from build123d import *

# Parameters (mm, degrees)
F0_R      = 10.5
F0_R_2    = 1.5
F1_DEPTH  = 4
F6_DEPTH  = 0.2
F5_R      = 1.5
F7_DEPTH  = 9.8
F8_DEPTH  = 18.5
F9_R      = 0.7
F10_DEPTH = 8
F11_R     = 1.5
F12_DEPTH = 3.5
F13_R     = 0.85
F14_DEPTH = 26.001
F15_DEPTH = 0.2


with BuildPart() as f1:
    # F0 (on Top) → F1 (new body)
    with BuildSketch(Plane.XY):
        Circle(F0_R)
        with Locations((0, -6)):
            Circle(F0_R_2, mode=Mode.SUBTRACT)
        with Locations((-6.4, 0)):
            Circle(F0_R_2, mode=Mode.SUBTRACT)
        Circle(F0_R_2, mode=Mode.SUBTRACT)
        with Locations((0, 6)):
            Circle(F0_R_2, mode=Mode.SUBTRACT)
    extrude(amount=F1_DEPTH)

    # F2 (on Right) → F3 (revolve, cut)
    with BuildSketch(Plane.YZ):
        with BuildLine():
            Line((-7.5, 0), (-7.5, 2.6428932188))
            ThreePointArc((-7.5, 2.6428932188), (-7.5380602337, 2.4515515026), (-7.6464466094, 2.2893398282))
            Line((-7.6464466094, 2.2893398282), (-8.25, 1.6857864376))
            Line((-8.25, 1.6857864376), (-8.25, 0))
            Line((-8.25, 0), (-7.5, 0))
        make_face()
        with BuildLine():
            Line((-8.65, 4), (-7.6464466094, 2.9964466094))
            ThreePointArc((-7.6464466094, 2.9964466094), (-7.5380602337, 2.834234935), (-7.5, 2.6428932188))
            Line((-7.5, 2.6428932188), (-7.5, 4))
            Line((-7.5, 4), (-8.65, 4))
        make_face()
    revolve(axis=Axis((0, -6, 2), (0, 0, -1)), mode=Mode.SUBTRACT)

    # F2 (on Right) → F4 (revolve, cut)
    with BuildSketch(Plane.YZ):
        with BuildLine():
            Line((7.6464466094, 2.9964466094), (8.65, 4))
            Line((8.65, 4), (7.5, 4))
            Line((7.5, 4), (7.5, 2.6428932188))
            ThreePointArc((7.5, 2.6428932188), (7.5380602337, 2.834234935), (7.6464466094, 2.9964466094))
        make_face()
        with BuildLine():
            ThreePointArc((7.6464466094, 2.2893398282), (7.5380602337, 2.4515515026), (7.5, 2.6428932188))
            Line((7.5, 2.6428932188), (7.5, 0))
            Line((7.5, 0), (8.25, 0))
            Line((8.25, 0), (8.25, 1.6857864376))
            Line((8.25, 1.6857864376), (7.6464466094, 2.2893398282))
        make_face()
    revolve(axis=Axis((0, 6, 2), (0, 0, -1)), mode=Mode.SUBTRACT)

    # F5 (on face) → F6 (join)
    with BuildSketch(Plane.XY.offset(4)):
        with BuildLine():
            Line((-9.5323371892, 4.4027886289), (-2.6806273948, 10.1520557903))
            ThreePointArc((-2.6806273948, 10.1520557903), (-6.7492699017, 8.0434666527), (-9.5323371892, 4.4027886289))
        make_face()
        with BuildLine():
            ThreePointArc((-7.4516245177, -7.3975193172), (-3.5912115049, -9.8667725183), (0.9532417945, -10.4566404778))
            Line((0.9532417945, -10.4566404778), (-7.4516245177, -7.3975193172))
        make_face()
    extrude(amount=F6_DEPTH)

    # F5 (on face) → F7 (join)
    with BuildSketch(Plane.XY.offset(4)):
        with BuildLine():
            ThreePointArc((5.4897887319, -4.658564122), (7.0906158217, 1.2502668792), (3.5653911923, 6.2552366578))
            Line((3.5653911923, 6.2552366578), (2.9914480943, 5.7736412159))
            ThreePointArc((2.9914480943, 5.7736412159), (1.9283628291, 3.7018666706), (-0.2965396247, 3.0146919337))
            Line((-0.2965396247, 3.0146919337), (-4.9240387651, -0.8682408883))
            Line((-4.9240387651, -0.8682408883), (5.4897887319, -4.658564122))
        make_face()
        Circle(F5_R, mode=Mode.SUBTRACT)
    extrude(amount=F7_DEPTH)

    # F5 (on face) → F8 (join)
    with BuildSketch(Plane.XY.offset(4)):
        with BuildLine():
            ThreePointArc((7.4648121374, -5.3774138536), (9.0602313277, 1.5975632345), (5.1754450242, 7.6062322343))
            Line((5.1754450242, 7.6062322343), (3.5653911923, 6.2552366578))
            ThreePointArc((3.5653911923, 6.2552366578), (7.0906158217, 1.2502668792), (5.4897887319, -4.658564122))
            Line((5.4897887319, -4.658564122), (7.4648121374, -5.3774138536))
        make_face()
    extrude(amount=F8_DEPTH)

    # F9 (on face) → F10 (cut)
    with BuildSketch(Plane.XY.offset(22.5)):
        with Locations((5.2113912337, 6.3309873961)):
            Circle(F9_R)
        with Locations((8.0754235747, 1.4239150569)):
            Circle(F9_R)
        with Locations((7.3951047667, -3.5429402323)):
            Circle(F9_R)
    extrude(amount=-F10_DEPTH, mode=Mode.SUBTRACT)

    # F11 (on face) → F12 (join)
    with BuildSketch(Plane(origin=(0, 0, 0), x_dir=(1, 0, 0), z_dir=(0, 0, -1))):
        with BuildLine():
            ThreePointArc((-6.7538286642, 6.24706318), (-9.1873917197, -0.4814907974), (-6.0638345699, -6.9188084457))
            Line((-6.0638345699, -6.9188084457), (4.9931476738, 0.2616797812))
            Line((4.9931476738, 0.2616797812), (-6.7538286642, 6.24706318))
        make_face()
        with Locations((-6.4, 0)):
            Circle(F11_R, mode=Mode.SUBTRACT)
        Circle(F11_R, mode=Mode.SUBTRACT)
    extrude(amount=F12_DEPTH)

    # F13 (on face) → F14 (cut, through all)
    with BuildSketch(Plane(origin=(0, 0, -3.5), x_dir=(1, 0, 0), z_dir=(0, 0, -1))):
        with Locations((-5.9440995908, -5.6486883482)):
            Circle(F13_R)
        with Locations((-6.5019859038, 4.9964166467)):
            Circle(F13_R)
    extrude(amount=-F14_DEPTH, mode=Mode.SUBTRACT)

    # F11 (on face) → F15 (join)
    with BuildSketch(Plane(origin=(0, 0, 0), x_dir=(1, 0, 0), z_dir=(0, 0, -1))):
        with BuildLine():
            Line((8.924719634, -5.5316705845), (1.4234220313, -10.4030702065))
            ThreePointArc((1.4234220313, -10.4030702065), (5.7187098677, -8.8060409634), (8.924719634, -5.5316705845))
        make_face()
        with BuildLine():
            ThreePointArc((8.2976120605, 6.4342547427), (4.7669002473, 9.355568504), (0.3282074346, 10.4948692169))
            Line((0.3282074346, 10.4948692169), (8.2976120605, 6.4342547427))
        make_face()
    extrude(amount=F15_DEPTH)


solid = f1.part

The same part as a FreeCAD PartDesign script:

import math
import FreeCAD as App
import Part
import Sketcher
Q = App.Units.Quantity

doc = App.newDocument("Part")
body = doc.addObject("PartDesign::Body", "Body")

# Sketch on XY plane
sketch1 = body.newObject("Sketcher::SketchObject", "Sketch")
sketch1.AttachmentSupport = (doc.getObject("XY_Plane"), [""])
sketch1.MapMode = "FlatFace"
sketch1.addGeometry([
    Part.Circle(App.Vector(0, 0, 0), App.Vector(0, 0, 1), 10.5),  # 0
    Part.Circle(App.Vector(0, -6, 0), App.Vector(0, 0, 1), 1.5),  # 1
    Part.Circle(App.Vector(-6.4, 0, 0), App.Vector(0, 0, 1), 1.5),  # 2
    Part.Circle(App.Vector(0, 0, 0), App.Vector(0, 0, 1), 1.5),  # 3
    Part.Circle(App.Vector(0, 6, 0), App.Vector(0, 0, 1), 1.5),  # 4
], False)
sketch1.addConstraint([
    Sketcher.Constraint("Coincident", 0, 3, -1, 1),
    Sketcher.Constraint("Coincident", 3, 3, -1, 1),
    Sketcher.Constraint("Equal", 1, 2),
    Sketcher.Constraint("Equal", 2, 3),
    Sketcher.Constraint("Equal", 3, 4),
    Sketcher.Constraint("Symmetric", 1, 3, 4, 3, -1, 1),
    Sketcher.Constraint("PointOnObject", 1, 3, -2),
    Sketcher.Constraint("PointOnObject", 2, 3, -1),
    Sketcher.Constraint("Diameter", 0, Q("21 mm")),
    Sketcher.Constraint("Diameter", 1, Q("3 mm")),
    Sketcher.Constraint("DistanceY", 1, 3, -1, 1, Q("6 mm")),
    Sketcher.Constraint("DistanceX", 2, 3, -1, 1, Q("6.4 mm")),
])
pad1 = body.newObject("PartDesign::Pad", "Pad")
pad1.Profile = sketch1
pad1.Length = 4

# Sketch on YZ plane
sketch2 = body.newObject("Sketcher::SketchObject", "Sketch001")
sketch2.AttachmentSupport = (doc.getObject("YZ_Plane"), [""])
sketch2.MapMode = "FlatFace"
sketch2.addGeometry([
    Part.LineSegment(App.Vector(-7.5, 0, 0), App.Vector(-7.5, 2.64, 0)),  # 0
    Part.ArcOfCircle(Part.Circle(App.Vector(-8, 2.64, 0), App.Vector(0, 0, 1), 0.5), math.radians(-45), math.radians(0)),  # 1
    Part.LineSegment(App.Vector(-7.65, 2.29, 0), App.Vector(-8.25, 1.69, 0)),  # 2
    Part.LineSegment(App.Vector(-8.25, 1.69, 0), App.Vector(-8.25, 0, 0)),  # 3
    Part.LineSegment(App.Vector(-8.25, 0, 0), App.Vector(-7.5, 0, 0)),  # 4
    Part.LineSegment(App.Vector(-8.65, 4, 0), App.Vector(-7.65, 3, 0)),  # 5
    Part.ArcOfCircle(Part.Circle(App.Vector(-8, 2.64, 0), App.Vector(0, 0, 1), 0.5), math.radians(0), math.radians(45)),  # 6
    Part.LineSegment(App.Vector(-7.5, 2.64, 0), App.Vector(-7.5, 4, 0)),  # 7
    Part.LineSegment(App.Vector(-7.5, 4, 0), App.Vector(-8.65, 4, 0)),  # 8
], False)
sketch2.addGeometry(Part.LineSegment(App.Vector(-6, 4, 0), App.Vector(-6, 0, 0)), True)  # axis
sketch2.addConstraint([
    Sketcher.Constraint("Tangent", 0, 2, 1, 2),
    Sketcher.Constraint("Tangent", 1, 1, 2, 1),
    Sketcher.Constraint("Coincident", 2, 2, 3, 1),
    Sketcher.Constraint("Coincident", 3, 2, 4, 1),
    Sketcher.Constraint("Coincident", 4, 2, 0, 1),
    Sketcher.Constraint("Tangent", 5, 2, 6, 2),
    Sketcher.Constraint("Tangent", 6, 1, 7, 1),
    Sketcher.Constraint("Coincident", 7, 2, 8, 1),
    Sketcher.Constraint("Coincident", 8, 2, 5, 1),
    Sketcher.Constraint("Vertical", 0),
    Sketcher.Constraint("Vertical", 3),
    Sketcher.Constraint("Horizontal", 4),
    Sketcher.Constraint("Vertical", 7),
    Sketcher.Constraint("Horizontal", 8),
    Sketcher.Constraint("Vertical", 9),
    Sketcher.Constraint("Coincident", 6, 3, 1, 3),
    Sketcher.Constraint("Equal", 1, 6),
    Sketcher.Constraint("PointOnObject", 3, 2, -1),
    Sketcher.Constraint("PointOnObject", 9, 2, -1),
    Sketcher.Constraint("Perpendicular", 2, 5),
    Sketcher.Constraint("Horizontal", 8, 2, 9, 1),
    Sketcher.Constraint("Vertical", 1, 1, 5, 2),
    Sketcher.Constraint("Radius", 1, Q("0.5 mm")),
    Sketcher.Constraint("DistanceY", 9, 2, 9, 1, Q("4 mm")),
    Sketcher.Constraint("DistanceX", 1, 3, -1, 1, Q("8 mm")),
    Sketcher.Constraint("DistanceX", 9, 1, -1, 1, Q("6 mm")),
    Sketcher.Constraint("DistanceX", 4, 1, 4, 2, Q("0.75 mm")),
    Sketcher.Constraint("DistanceX", 8, 2, 8, 1, Q("1.15 mm")),
])
groove = body.newObject("PartDesign::Groove", "Groove")
groove.Profile = sketch2
groove.ReferenceAxis = (sketch2, ["Axis0"])
groove.Angle = 360

# Sketch on YZ plane
sketch3 = body.newObject("Sketcher::SketchObject", "Sketch002")
sketch3.AttachmentSupport = (doc.getObject("YZ_Plane"), [""])
sketch3.MapMode = "FlatFace"
sketch3.addGeometry([
    Part.LineSegment(App.Vector(7.65, 3, 0), App.Vector(8.65, 4, 0)),  # 0
    Part.LineSegment(App.Vector(8.65, 4, 0), App.Vector(7.5, 4, 0)),  # 1
    Part.LineSegment(App.Vector(7.5, 4, 0), App.Vector(7.5, 2.64, 0)),  # 2
    Part.ArcOfCircle(Part.Circle(App.Vector(8, 2.64, 0), App.Vector(0, 0, 1), 0.5), math.radians(135), math.radians(180)),  # 3
    Part.ArcOfCircle(Part.Circle(App.Vector(8, 2.64, 0), App.Vector(0, 0, 1), 0.5), math.radians(180), math.radians(225)),  # 4
    Part.LineSegment(App.Vector(7.5, 2.64, 0), App.Vector(7.5, 0, 0)),  # 5
    Part.LineSegment(App.Vector(7.5, 0, 0), App.Vector(8.25, 0, 0)),  # 6
    Part.LineSegment(App.Vector(8.25, 0, 0), App.Vector(8.25, 1.69, 0)),  # 7
    Part.LineSegment(App.Vector(8.25, 1.69, 0), App.Vector(7.65, 2.29, 0)),  # 8
], False)
sketch3.addGeometry(Part.LineSegment(App.Vector(6, 4, 0), App.Vector(6, 0, 0)), True)  # axis
sketch3.addConstraint([
    Sketcher.Constraint("Coincident", 0, 2, 1, 1),
    Sketcher.Constraint("Coincident", 1, 2, 2, 1),
    Sketcher.Constraint("Tangent", 2, 2, 3, 2),
    Sketcher.Constraint("Tangent", 3, 1, 0, 1),
    Sketcher.Constraint("Tangent", 4, 1, 5, 1),
    Sketcher.Constraint("Coincident", 5, 2, 6, 1),
    Sketcher.Constraint("Coincident", 6, 2, 7, 1),
    Sketcher.Constraint("Coincident", 7, 2, 8, 1),
    Sketcher.Constraint("Tangent", 8, 2, 4, 2),
    Sketcher.Constraint("Horizontal", 1),
    Sketcher.Constraint("Vertical", 2),
    Sketcher.Constraint("Vertical", 5),
    Sketcher.Constraint("Horizontal", 6),
    Sketcher.Constraint("Vertical", 7),
    Sketcher.Constraint("Vertical", 9),
    Sketcher.Constraint("Coincident", 4, 3, 3, 3),
    Sketcher.Constraint("Equal", 3, 4),
    Sketcher.Constraint("PointOnObject", 5, 2, -1),
    Sketcher.Constraint("PointOnObject", 9, 2, -1),
    Sketcher.Constraint("Perpendicular", 0, 8),
    Sketcher.Constraint("Horizontal", 1, 2, 9, 1),
    Sketcher.Constraint("Vertical", 3, 1, 8, 2),
    Sketcher.Constraint("Radius", 3, Q("0.5 mm")),
    Sketcher.Constraint("DistanceY", 9, 2, 9, 1, Q("4 mm")),
    Sketcher.Constraint("DistanceX", -1, 1, 3, 3, Q("8 mm")),
    Sketcher.Constraint("DistanceX", -1, 1, 9, 1, Q("6 mm")),
    Sketcher.Constraint("DistanceX", 1, 2, 1, 1, Q("1.15 mm")),
    Sketcher.Constraint("DistanceX", 6, 1, 6, 2, Q("0.75 mm")),
])
groove2 = body.newObject("PartDesign::Groove", "Groove001")
groove2.Profile = sketch3
groove2.ReferenceAxis = (sketch3, ["Axis0"])
groove2.Angle = 360

# Sketch on XY plane
sketch4 = body.newObject("Sketcher::SketchObject", "Sketch003")
sketch4.AttachmentSupport = (doc.getObject("XY_Plane"), [""])
sketch4.MapMode = "FlatFace"
sketch4.AttachmentOffset = App.Placement(App.Vector(0, 0, 4), App.Rotation())
sketch4.addGeometry([
    Part.LineSegment(App.Vector(-10, 4, 0), App.Vector(-3, 10, 0)),
    Part.ArcOfCircle(Part.Circle(App.Vector(0, 0, 0), App.Vector(0, 0, 1), 10), math.radians(105), math.radians(155)),
    Part.ArcOfCircle(Part.Circle(App.Vector(0, 0, 0), App.Vector(0, 0, 1), 10), math.radians(-135), math.radians(-85)),
    Part.LineSegment(App.Vector(1, -10, 0), App.Vector(-7, -7, 0)),
], False)
sketch4.addConstraint([
    Sketcher.Constraint("Coincident", 0, 1, 1, 2),
    Sketcher.Constraint("Coincident", 1, 1, 0, 2),
    Sketcher.Constraint("Coincident", 2, 1, 3, 2),
    Sketcher.Constraint("Coincident", 3, 1, 2, 2),
    Sketcher.Constraint("Coincident", 1, 3, -1, 1),
    Sketcher.Constraint("Coincident", 2, 3, -1, 1),
    Sketcher.Constraint("Equal", 1, 2),
    Sketcher.Constraint("Equal", 0, 3),
    Sketcher.Constraint("Radius", 1, Q("10.5 mm")),
    Sketcher.Constraint("Angle", 0, Q("40 deg")),
    Sketcher.Constraint("Angle", 3, Q("160 deg")),
    Sketcher.Constraint("Distance", 0, Q("8.944272 mm")),
])
pad2 = body.newObject("PartDesign::Pad", "Pad001")
pad2.Profile = sketch4
pad2.Length = 0.2

# Sketch on XY plane
sketch5 = body.newObject("Sketcher::SketchObject", "Sketch004")
sketch5.AttachmentSupport = (doc.getObject("XY_Plane"), [""])
sketch5.MapMode = "FlatFace"
sketch5.AttachmentOffset = App.Placement(App.Vector(0, 0, 4), App.Rotation())
sketch5.addGeometry([
    Part.ArcOfCircle(Part.Circle(App.Vector(0, 0, 0), App.Vector(0, 0, 1), 7.2), math.radians(-40), math.radians(60)),  # 0
    Part.LineSegment(App.Vector(3.6, 6.3, 0), App.Vector(3, 5.8, 0)),  # 1
    Part.ArcOfCircle(Part.Circle(App.Vector(0, 6, 0), App.Vector(0, 0, 1), 3), math.radians(-96), math.radians(-4)),  # 2
    Part.LineSegment(App.Vector(-0.3, 3, 0), App.Vector(-4.9, -0.9, 0)),  # 3
    Part.LineSegment(App.Vector(-4.9, -0.9, 0), App.Vector(5.5, -4.7, 0)),  # 4
    Part.Circle(App.Vector(0, 0, 0), App.Vector(0, 0, 1), 1.5),  # 5
], False)
sketch5.addConstraint([
    Sketcher.Constraint("Coincident", 0, 2, 1, 1),
    Sketcher.Constraint("Coincident", 1, 2, 2, 2),
    Sketcher.Constraint("Coincident", 2, 1, 3, 1),
    Sketcher.Constraint("Coincident", 3, 2, 4, 1),
    Sketcher.Constraint("Coincident", 4, 2, 0, 1),
    Sketcher.Constraint("Coincident", 0, 3, -1, 1),
    Sketcher.Constraint("Coincident", 5, 3, -1, 1),
    Sketcher.Constraint("PointOnObject", 2, 3, -2),
    Sketcher.Constraint("Parallel", 1, 3),
    Sketcher.Constraint("Diameter", 5, Q("3 mm")),
    Sketcher.Constraint("Radius", 2, Q("3 mm")),
    Sketcher.Constraint("Radius", 0, Q("7.2 mm")),
    Sketcher.Constraint("Angle", 1, Q("-140 deg")),
    Sketcher.Constraint("Angle", 4, Q("-20 deg")),
    Sketcher.Constraint("DistanceY", -1, 1, 2, 3, Q("6 mm")),
    Sketcher.Constraint("DistanceX", 3, 2, 2, 1, Q("4.627499 mm")),
    Sketcher.Constraint("Distance", 1, Q("0.74923 mm")),
    Sketcher.Constraint("DistanceX", 2, 1, -1, 1, Q("0.29654 mm")),
])
pad3 = body.newObject("PartDesign::Pad", "Pad002")
pad3.Profile = sketch5
pad3.Length = 9.8

# Sketch on XY plane
sketch6 = body.newObject("Sketcher::SketchObject", "Sketch005")
sketch6.AttachmentSupport = (doc.getObject("XY_Plane"), [""])
sketch6.MapMode = "FlatFace"
sketch6.AttachmentOffset = App.Placement(App.Vector(0, 0, 4), App.Rotation())
sketch6.addGeometry([
    Part.ArcOfCircle(Part.Circle(App.Vector(0, 0, 0), App.Vector(0, 0, 1), 9.2), math.radians(-36), math.radians(56)),
    Part.LineSegment(App.Vector(5.2, 7.6, 0), App.Vector(3.6, 6.3, 0)),
    Part.ArcOfCircle(Part.Circle(App.Vector(0, 0, 0), App.Vector(0, 0, 1), 7.2), math.radians(-40), math.radians(60)),
    Part.LineSegment(App.Vector(5.5, -4.7, 0), App.Vector(7.5, -5.4, 0)),
], False)
sketch6.addConstraint([
    Sketcher.Constraint("Coincident", 0, 2, 1, 1),
    Sketcher.Constraint("Coincident", 1, 2, 2, 2),
    Sketcher.Constraint("Coincident", 2, 1, 3, 1),
    Sketcher.Constraint("Coincident", 3, 2, 0, 1),
    Sketcher.Constraint("Coincident", 0, 3, -1, 1),
    Sketcher.Constraint("Coincident", 2, 3, -1, 1),
    Sketcher.Constraint("Equal", 1, 3),
    Sketcher.Constraint("Radius", 0, Q("9.2 mm")),
    Sketcher.Constraint("Radius", 2, Q("7.2 mm")),
    Sketcher.Constraint("Angle", 1, Q("-140 deg")),
    Sketcher.Constraint("Angle", 3, Q("-20 deg")),
    Sketcher.Constraint("DistanceY", 2, 1, 1, 2, Q("10.913801 mm")),
])
pad4 = body.newObject("PartDesign::Pad", "Pad003")
pad4.Profile = sketch6
pad4.Length = 18.5

# Sketch on XY plane
sketch7 = body.newObject("Sketcher::SketchObject", "Sketch006")
sketch7.AttachmentSupport = (doc.getObject("XY_Plane"), [""])
sketch7.MapMode = "FlatFace"
sketch7.AttachmentOffset = App.Placement(App.Vector(0, 0, 22.5), App.Rotation())
sketch7.addGeometry([
    Part.Circle(App.Vector(5.2, 6.3, 0), App.Vector(0, 0, 1), 0.7),
    Part.Circle(App.Vector(8.1, 1.4, 0), App.Vector(0, 0, 1), 0.7),
    Part.Circle(App.Vector(7.4, -3.5, 0), App.Vector(0, 0, 1), 0.7),
], False)
sketch7.addConstraint([
    Sketcher.Constraint("Equal", 0, 1),
    Sketcher.Constraint("Equal", 1, 2),
    Sketcher.Constraint("Diameter", 0, Q("1.4 mm")),
    Sketcher.Constraint("DistanceX", -1, 1, 0, 3, Q("5.211391 mm")),
    Sketcher.Constraint("DistanceY", 2, 3, -1, 1, Q("3.54294 mm")),
    Sketcher.Constraint("DistanceX", 2, 3, 1, 3, Q("0.680319 mm")),
    Sketcher.Constraint("DistanceY", -1, 1, 0, 3, Q("6.330987 mm")),
    Sketcher.Constraint("DistanceX", -1, 1, 1, 3, Q("8.075424 mm")),
    Sketcher.Constraint("DistanceY", -1, 1, 1, 3, Q("1.423915 mm")),
])
pocket1 = body.newObject("PartDesign::Pocket", "Pocket")
pocket1.Profile = sketch7
pocket1.Length = 8

# Sketch on XY plane
sketch8 = body.newObject("Sketcher::SketchObject", "Sketch007")
sketch8.AttachmentSupport = (doc.getObject("XY_Plane"), [""])
sketch8.MapMode = "FlatFace"
sketch8.addGeometry([
    Part.ArcOfCircle(Part.Circle(App.Vector(0, 0, 0), App.Vector(0, 0, 1), 9.2), math.radians(131), math.radians(223)),  # 0
    Part.LineSegment(App.Vector(-6.1, 6.9, 0), App.Vector(5, -0.3, 0)),  # 1
    Part.LineSegment(App.Vector(5, -0.3, 0), App.Vector(-6.8, -6.2, 0)),  # 2
    Part.Circle(App.Vector(-6.4, 0, 0), App.Vector(0, 0, 1), 1.5),  # 3
    Part.Circle(App.Vector(0, 0, 0), App.Vector(0, 0, 1), 1.5),  # 4
], False)
sketch8.addConstraint([
    Sketcher.Constraint("Coincident", 0, 1, 1, 1),
    Sketcher.Constraint("Coincident", 1, 2, 2, 1),
    Sketcher.Constraint("Coincident", 2, 2, 0, 2),
    Sketcher.Constraint("Coincident", 0, 3, -1, 1),
    Sketcher.Constraint("Coincident", 4, 3, -1, 1),
    Sketcher.Constraint("Equal", 3, 4),
    Sketcher.Constraint("PointOnObject", 3, 3, -1),
    Sketcher.Constraint("Equal", 1, 2),
    Sketcher.Constraint("Diameter", 3, Q("3 mm")),
    Sketcher.Constraint("Radius", 0, Q("9.2 mm")),
    Sketcher.Constraint("Angle", 1, Q("-33 deg")),
    Sketcher.Constraint("Angle", 2, Q("-153 deg")),
    Sketcher.Constraint("DistanceX", 3, 3, -1, 1, Q("6.4 mm")),
    Sketcher.Constraint("Distance", 1, Q("13.18394 mm")),
])
pad5 = body.newObject("PartDesign::Pad", "Pad004")
pad5.Profile = sketch8
pad5.Length = 3.5
pad5.Reversed = True

# Sketch on XY plane
sketch9 = body.newObject("Sketcher::SketchObject", "Sketch008")
sketch9.AttachmentSupport = (doc.getObject("XY_Plane"), [""])
sketch9.MapMode = "FlatFace"
sketch9.AttachmentOffset = App.Placement(App.Vector(0, 0, -3.5), App.Rotation())
sketch9.addGeometry([
    Part.Circle(App.Vector(-5.9, 5.6, 0), App.Vector(0, 0, 1), 0.8),
    Part.Circle(App.Vector(-6.5, -5, 0), App.Vector(0, 0, 1), 0.8),
], False)
sketch9.addConstraint([
    Sketcher.Constraint("Equal", 0, 1),
    Sketcher.Constraint("Diameter", 0, Q("1.7 mm")),
    Sketcher.Constraint("DistanceX", 0, 3, -1, 1, Q("5.9441 mm")),
    Sketcher.Constraint("DistanceY", -1, 1, 0, 3, Q("5.648688 mm")),
    Sketcher.Constraint("DistanceX", 1, 3, -1, 1, Q("6.501986 mm")),
    Sketcher.Constraint("DistanceY", 1, 3, -1, 1, Q("4.996417 mm")),
])
pocket2 = body.newObject("PartDesign::Pocket", "Pocket001")
pocket2.Profile = sketch9
pocket2.Type = "ThroughAll"
pocket2.Reversed = True

# Sketch on XY plane
sketch10 = body.newObject("Sketcher::SketchObject", "Sketch009")
sketch10.AttachmentSupport = (doc.getObject("XY_Plane"), [""])
sketch10.MapMode = "FlatFace"
sketch10.addGeometry([
    Part.LineSegment(App.Vector(9, 6, 0), App.Vector(1, 10, 0)),
    Part.ArcOfCircle(Part.Circle(App.Vector(0, 0, 0), App.Vector(0, 0, 1), 10), math.radians(32), math.radians(82)),
    Part.ArcOfCircle(Part.Circle(App.Vector(0, 0, 0), App.Vector(0, 0, 1), 10), math.radians(-88), math.radians(-38)),
    Part.LineSegment(App.Vector(0, -10, 0), App.Vector(8, -6, 0)),
], False)
sketch10.addConstraint([
    Sketcher.Constraint("Coincident", 0, 1, 1, 1),
    Sketcher.Constraint("Coincident", 1, 2, 0, 2),
    Sketcher.Constraint("Coincident", 2, 1, 3, 1),
    Sketcher.Constraint("Coincident", 3, 2, 2, 2),
    Sketcher.Constraint("Coincident", 1, 3, -1, 1),
    Sketcher.Constraint("Coincident", 2, 3, -1, 1),
    Sketcher.Constraint("Equal", 1, 2),
    Sketcher.Constraint("Equal", 0, 3),
    Sketcher.Constraint("Radius", 1, Q("10.5 mm")),
    Sketcher.Constraint("Angle", 0, Q("147 deg")),
    Sketcher.Constraint("Angle", 3, Q("27 deg")),
    Sketcher.Constraint("DistanceY", 0, 1, 1, 2, Q("4.8714 mm")),
])
pad6 = body.newObject("PartDesign::Pad", "Pad005")
pad6.Profile = sketch10
pad6.Length = 0.2
pad6.Reversed = True

doc.recompute()
